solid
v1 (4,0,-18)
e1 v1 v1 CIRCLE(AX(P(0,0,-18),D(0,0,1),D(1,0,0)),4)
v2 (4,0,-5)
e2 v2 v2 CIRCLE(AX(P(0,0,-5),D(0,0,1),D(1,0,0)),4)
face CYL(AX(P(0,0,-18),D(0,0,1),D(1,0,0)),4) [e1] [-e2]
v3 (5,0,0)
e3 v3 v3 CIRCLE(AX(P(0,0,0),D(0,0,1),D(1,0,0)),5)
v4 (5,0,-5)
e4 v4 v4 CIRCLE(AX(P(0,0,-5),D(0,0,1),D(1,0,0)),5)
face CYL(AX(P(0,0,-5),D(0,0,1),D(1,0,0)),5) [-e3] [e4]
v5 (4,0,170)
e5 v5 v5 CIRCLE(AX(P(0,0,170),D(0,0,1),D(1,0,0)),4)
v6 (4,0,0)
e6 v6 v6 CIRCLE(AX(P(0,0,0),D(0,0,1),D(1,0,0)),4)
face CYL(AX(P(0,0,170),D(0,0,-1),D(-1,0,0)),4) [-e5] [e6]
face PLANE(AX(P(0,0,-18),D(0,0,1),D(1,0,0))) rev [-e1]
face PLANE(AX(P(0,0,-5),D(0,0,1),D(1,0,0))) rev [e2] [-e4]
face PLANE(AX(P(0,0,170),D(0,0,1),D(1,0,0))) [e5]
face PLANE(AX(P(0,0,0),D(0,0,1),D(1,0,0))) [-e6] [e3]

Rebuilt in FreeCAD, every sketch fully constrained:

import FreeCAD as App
import Part
import Sketcher
from FreeCAD import Vector
Q = App.Units.Quantity

doc = App.newDocument("Part")
params = doc.addObject("Spreadsheet::Sheet", "Params")
for row, (alias, value) in enumerate([
    ("sketch1_diameter", "8 mm"),
    ("pad1_length", "170 mm"),
    ("sketch2_diameter", "10 mm"),
    ("pad2_length", "5 mm"),
    ("sketch3_diameter", "8 mm"),
    ("pad3_length", "18 mm"),
], start=1):
    params.set(f"A{row}", alias)
    params.set(f"B{row}", "=" + value)
    params.setAlias(f"B{row}", alias)

body = doc.addObject("PartDesign::Body", "Body")

# Sketch on XY plane
sketch1 = body.newObject("Sketcher::SketchObject", "Sketch")
sketch1.AttachmentSupport = (doc.getObject("XY_Plane"), [""])
sketch1.MapMode = "FlatFace"
sketch1.addGeometry(Part.Circle(Vector(0, 0, 0), Vector(0, 0, 1), 4), False)
sketch1.addConstraint(Sketcher.Constraint("Coincident", 0, 3, -1, 1))
sketch1.addConstraint(Sketcher.Constraint("Diameter", 0, Q("8 mm")))
sketch1.setExpression("Constraints[1]", "Params.sketch1_diameter")
pad1 = body.newObject("PartDesign::Pad", "Pad")
pad1.Profile = sketch1
pad1.setExpression("Length", "Params.pad1_length")

# Sketch on XY plane
sketch2 = body.newObject("Sketcher::SketchObject", "Sketch001")
sketch2.AttachmentSupport = (doc.getObject("XY_Plane"), [""])
sketch2.MapMode = "FlatFace"
sketch2.addGeometry(Part.Circle(Vector(0, 0, 0), Vector(0, 0, 1), 5), False)
sketch2.addConstraint(Sketcher.Constraint("Coincident", 0, 3, -1, 1))
sketch2.addConstraint(Sketcher.Constraint("Diameter", 0, Q("10 mm")))
sketch2.setExpression("Constraints[1]", "Params.sketch2_diameter")
pad2 = body.newObject("PartDesign::Pad", "Pad001")
pad2.Profile = sketch2
pad2.setExpression("Length", "Params.pad2_length")
pad2.Reversed = True

# Sketch on XY plane
sketch3 = body.newObject("Sketcher::SketchObject", "Sketch002")
sketch3.AttachmentSupport = (doc.getObject("XY_Plane"), [""])
sketch3.MapMode = "FlatFace"
sketch3.AttachmentOffset = App.Placement(Vector(0, 0, -18), App.Rotation())
sketch3.addGeometry(Part.Circle(Vector(0, 0, 0), Vector(0, 0, 1), 4), False)
sketch3.addConstraint(Sketcher.Constraint("Coincident", 0, 3, -1, 1))
sketch3.addConstraint(Sketcher.Constraint("Diameter", 0, Q("8 mm")))
sketch3.setExpression("Constraints[1]", "Params.sketch3_diameter")
pad3 = body.newObject("PartDesign::Pad", "Pad002")
pad3.Profile = sketch3
pad3.setExpression("Length", "Params.pad3_length")

doc.recompute()
